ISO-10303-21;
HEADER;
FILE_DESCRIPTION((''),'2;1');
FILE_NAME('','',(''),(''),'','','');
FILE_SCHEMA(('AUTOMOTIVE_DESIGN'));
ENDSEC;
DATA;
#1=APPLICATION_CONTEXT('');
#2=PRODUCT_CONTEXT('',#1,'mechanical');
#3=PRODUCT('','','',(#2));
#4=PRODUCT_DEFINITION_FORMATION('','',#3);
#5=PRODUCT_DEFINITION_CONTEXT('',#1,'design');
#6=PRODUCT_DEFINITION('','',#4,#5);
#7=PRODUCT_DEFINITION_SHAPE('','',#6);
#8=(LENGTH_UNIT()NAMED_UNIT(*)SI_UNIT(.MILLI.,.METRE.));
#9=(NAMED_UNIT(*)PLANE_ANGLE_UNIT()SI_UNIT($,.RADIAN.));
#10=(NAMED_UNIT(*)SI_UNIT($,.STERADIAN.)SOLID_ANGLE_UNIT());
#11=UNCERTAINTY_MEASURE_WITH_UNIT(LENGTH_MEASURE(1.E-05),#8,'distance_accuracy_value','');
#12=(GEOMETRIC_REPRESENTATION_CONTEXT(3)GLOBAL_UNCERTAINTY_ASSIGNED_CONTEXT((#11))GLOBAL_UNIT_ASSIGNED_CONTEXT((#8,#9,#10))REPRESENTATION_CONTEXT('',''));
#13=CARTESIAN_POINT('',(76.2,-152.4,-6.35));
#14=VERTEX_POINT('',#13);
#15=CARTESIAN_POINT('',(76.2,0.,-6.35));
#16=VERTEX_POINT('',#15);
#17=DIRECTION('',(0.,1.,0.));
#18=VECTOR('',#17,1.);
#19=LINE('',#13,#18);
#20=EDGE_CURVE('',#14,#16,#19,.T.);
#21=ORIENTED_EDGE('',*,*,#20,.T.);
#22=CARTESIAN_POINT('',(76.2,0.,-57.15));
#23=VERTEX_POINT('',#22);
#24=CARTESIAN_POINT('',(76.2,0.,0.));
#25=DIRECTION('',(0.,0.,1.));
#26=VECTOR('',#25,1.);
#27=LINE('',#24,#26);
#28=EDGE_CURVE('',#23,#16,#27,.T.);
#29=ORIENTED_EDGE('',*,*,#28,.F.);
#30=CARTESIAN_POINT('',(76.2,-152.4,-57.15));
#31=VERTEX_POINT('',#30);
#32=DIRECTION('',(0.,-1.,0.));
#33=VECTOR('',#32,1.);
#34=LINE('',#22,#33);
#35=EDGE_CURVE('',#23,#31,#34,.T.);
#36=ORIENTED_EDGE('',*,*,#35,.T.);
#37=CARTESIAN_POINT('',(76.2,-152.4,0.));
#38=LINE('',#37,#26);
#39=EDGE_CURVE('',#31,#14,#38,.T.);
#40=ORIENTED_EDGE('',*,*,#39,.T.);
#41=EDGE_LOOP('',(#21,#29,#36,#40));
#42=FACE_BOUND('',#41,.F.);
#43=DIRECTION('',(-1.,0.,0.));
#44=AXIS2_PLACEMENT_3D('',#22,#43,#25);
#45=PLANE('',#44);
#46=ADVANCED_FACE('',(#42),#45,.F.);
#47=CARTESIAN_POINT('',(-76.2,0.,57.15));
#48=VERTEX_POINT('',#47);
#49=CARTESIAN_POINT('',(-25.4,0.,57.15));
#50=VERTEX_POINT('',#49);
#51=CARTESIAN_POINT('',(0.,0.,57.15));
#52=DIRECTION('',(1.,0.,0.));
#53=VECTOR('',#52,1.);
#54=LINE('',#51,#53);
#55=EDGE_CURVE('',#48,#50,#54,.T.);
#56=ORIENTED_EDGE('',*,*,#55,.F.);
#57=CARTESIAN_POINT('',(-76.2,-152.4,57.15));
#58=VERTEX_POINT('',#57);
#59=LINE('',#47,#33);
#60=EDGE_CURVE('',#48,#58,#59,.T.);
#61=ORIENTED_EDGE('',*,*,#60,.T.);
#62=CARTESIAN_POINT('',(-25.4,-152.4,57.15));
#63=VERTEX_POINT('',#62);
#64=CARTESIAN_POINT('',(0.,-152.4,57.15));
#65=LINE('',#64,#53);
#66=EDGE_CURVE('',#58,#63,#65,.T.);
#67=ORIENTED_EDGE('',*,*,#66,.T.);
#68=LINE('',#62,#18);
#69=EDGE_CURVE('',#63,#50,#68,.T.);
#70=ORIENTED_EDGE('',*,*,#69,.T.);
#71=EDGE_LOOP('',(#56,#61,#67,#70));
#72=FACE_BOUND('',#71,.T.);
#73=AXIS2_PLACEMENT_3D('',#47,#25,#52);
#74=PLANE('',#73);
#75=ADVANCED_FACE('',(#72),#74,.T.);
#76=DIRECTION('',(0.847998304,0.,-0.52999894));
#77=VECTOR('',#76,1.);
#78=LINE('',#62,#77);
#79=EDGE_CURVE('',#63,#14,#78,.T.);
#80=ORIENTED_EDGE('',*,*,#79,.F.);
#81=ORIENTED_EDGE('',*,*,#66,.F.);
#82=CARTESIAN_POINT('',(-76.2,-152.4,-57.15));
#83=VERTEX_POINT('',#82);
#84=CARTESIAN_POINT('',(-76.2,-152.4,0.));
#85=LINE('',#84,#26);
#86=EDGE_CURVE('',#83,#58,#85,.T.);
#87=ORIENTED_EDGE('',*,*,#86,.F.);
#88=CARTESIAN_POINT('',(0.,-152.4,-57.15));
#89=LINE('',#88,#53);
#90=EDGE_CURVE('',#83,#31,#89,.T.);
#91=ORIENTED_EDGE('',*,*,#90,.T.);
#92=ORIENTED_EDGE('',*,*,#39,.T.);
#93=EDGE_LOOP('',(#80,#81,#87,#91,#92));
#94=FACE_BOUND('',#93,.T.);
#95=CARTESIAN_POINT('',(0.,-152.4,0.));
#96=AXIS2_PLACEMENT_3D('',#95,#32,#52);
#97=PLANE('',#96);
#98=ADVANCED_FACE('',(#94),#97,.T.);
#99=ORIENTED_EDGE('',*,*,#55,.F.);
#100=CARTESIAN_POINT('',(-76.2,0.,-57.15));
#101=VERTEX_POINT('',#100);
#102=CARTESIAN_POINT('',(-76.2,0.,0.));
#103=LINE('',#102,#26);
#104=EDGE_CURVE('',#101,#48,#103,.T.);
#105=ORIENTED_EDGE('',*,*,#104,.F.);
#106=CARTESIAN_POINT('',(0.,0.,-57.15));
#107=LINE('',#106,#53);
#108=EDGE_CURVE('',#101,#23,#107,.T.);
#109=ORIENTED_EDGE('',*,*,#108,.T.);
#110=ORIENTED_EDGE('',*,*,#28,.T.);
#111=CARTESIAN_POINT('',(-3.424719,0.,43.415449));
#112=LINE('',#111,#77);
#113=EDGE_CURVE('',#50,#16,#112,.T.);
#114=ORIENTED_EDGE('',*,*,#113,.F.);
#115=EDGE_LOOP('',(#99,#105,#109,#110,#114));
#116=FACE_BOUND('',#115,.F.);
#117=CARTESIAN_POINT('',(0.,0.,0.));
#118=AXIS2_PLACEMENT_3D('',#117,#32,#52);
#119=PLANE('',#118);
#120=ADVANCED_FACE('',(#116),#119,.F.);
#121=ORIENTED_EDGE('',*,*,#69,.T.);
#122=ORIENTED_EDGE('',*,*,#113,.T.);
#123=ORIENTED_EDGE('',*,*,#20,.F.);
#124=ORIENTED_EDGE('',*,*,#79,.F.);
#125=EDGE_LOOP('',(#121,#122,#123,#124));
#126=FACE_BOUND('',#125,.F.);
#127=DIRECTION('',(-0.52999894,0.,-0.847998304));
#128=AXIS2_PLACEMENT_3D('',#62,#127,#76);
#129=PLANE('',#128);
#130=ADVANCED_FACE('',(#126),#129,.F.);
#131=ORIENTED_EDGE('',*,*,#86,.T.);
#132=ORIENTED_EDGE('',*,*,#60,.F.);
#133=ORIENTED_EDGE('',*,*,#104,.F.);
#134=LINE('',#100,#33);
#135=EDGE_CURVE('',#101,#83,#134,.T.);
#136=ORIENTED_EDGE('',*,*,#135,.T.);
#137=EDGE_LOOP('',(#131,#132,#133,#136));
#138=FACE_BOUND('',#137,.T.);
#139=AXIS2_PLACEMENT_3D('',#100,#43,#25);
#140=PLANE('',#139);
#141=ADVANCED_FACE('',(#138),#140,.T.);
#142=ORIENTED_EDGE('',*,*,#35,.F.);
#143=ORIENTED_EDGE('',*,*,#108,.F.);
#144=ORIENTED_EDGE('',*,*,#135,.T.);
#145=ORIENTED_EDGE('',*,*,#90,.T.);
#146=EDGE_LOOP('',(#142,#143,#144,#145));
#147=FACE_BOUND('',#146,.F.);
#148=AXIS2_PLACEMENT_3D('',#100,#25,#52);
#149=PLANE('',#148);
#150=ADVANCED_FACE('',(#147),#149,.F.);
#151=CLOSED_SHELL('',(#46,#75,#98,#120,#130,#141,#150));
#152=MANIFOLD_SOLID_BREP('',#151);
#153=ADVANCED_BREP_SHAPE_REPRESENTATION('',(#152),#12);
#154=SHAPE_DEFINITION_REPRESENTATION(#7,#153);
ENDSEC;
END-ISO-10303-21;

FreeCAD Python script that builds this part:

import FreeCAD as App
import Part
import Sketcher
Q = App.Units.Quantity

doc = App.newDocument("Part")
params = doc.addObject("Spreadsheet::Sheet", "Params")
for row, (alias, value) in enumerate([
    ("sketch1_width", "6 in"),
    ("sketch1_height", "4.5 in"),
    ("pad1_length", "6 in"),
    ("sketch2_width", "4 in"),
    ("sketch2_height", "2.5 in"),
], start=1):
    params.set(f"A{row}", alias)
    params.set(f"B{row}", "=" + value)
    params.setAlias(f"B{row}", alias)

body = doc.addObject("PartDesign::Body", "Body")

sketch1 = doc.addObject("Sketcher::SketchObject", "Sketch")
body.addObject(sketch1)
sketch1.AttachmentSupport = (doc.XZ_Plane, [""])
sketch1.MapMode = "FlatFace"
sketch1.addGeometry(Part.LineSegment(App.Vector(-76.2, 57.15, 0), App.Vector(-76.2, -57.15, 0)), False)
sketch1.addGeometry(Part.LineSegment(App.Vector(-76.2, -57.15, 0), App.Vector(76.2, -57.15, 0)), False)
sketch1.addGeometry(Part.LineSegment(App.Vector(76.2, -57.15, 0), App.Vector(76.2, 57.15, 0)), False)
sketch1.addGeometry(Part.LineSegment(App.Vector(76.2, 57.15, 0), App.Vector(-76.2, 57.15, 0)), False)
sketch1.addConstraint(Sketcher.Constraint("Coincident", 0, 2, 1, 1))
sketch1.addConstraint(Sketcher.Constraint("Coincident", 1, 2, 2, 1))
sketch1.addConstraint(Sketcher.Constraint("Coincident", 2, 2, 3, 1))
sketch1.addConstraint(Sketcher.Constraint("Coincident", 3, 2, 0, 1))
sketch1.addConstraint(Sketcher.Constraint("Vertical", 0))
sketch1.addConstraint(Sketcher.Constraint("Horizontal", 1))
sketch1.addConstraint(Sketcher.Constraint("Vertical", 2))
sketch1.addConstraint(Sketcher.Constraint("Horizontal", 3))
sketch1.addConstraint(Sketcher.Constraint("Symmetric", 0, 2, 2, 2, -1, 1))
sketch1.addConstraint(Sketcher.Constraint("DistanceX", 1, 1, 1, 2, Q("6 in")))
sketch1.addConstraint(Sketcher.Constraint("DistanceY", 0, 2, 0, 1, Q("4.5 in")))
sketch1.setExpression("Constraints[9]", "Params.sketch1_width")
sketch1.setExpression("Constraints[10]", "Params.sketch1_height")
pad1 = doc.addObject("PartDesign::Pad", "Pad")
body.addObject(pad1)
pad1.Profile = sketch1
pad1.setExpression("Length", "Params.pad1_length")

sketch2 = doc.addObject("Sketcher::SketchObject", "Sketch001")
body.addObject(sketch2)
sketch2.AttachmentSupport = (doc.XZ_Plane, [""])
sketch2.MapMode = "FlatFace"
sketch2.AttachmentOffset = App.Placement(App.Vector(0, 0, 6 * 25.4), App.Rotation())
sketch2.addGeometry(Part.LineSegment(App.Vector(76.2, 57.15, 0), App.Vector(-25.4, 57.15, 0)), False)
sketch2.addGeometry(Part.LineSegment(App.Vector(-25.4, 57.15, 0), App.Vector(76.2, -6.35, 0)), False)
sketch2.addGeometry(Part.LineSegment(App.Vector(76.2, -6.35, 0), App.Vector(76.2, 57.15, 0)), False)
sketch2.addConstraint(Sketcher.Constraint("Coincident", 0, 2, 1, 1))
sketch2.addConstraint(Sketcher.Constraint("Coincident", 1, 2, 2, 1))
sketch2.addConstraint(Sketcher.Constraint("Coincident", 2, 2, 0, 1))
sketch2.addConstraint(Sketcher.Constraint("Horizontal", 0))
sketch2.addConstraint(Sketcher.Constraint("Vertical", 2))
sketch2.addConstraint(Sketcher.Constraint("DistanceX", 0, 2, 0, 1, Q("4 in")))
sketch2.addConstraint(Sketcher.Constraint("DistanceY", 2, 1, 2, 2, Q("2.5 in")))
sketch2.addConstraint(Sketcher.Constraint("DistanceX", 0, 2, -1, 1, Q("1 in")))
sketch2.addConstraint(Sketcher.Constraint("DistanceY", -1, 1, 0, 2, Q("2.25 in")))
sketch2.setExpression("Constraints[5]", "Params.sketch2_width")
sketch2.setExpression("Constraints[6]", "Params.sketch2_height")
pocket1 = doc.addObject("PartDesign::Pocket", "Pocket")
body.addObject(pocket1)
pocket1.Profile = sketch2
pocket1.Type = "ThroughAll"

doc.recompute()
